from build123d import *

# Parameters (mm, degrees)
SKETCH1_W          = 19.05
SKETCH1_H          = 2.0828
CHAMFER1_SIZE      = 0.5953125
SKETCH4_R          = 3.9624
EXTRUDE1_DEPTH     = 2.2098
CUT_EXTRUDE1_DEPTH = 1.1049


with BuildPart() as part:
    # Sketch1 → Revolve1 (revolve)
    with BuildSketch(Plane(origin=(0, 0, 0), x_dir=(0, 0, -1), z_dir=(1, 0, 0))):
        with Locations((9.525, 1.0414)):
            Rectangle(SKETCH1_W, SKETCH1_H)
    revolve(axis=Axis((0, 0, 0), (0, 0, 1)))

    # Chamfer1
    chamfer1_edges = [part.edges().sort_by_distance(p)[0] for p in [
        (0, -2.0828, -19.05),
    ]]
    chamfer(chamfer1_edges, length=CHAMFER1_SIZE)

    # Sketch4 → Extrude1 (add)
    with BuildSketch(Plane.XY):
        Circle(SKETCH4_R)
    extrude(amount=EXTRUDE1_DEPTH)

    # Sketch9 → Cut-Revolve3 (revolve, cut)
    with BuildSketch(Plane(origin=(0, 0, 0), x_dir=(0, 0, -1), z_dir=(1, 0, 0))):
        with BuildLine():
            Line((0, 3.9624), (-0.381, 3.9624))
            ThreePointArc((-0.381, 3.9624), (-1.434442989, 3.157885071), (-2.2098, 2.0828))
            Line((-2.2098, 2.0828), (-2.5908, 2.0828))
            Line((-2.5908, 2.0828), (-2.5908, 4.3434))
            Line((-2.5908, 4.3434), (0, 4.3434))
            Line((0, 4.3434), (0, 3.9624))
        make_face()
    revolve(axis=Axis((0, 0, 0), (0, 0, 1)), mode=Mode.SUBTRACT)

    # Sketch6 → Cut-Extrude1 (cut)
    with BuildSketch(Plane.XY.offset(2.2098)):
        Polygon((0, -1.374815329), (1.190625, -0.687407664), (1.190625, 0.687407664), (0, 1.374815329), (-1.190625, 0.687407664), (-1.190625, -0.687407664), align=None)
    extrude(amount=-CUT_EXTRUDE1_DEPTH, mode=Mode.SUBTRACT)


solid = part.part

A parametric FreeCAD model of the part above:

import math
import FreeCAD as App
import Part
import Sketcher
from FreeCAD import Vector
Q = App.Units.Quantity


def edges_at(feature, points):
    """Names of the edges that pass closest to the given points."""
    edges = feature.Shape.Edges
    near = lambda p: min(range(len(edges)), key=lambda i: edges[i].distToShape(Part.Vertex(*p))[0])
    return sorted({f"Edge{near(p) + 1}" for p in points})

doc = App.newDocument("Part")
body = doc.addObject("PartDesign::Body", "Body")

# Sketch on YZ plane
sketch1 = body.newObject("Sketcher::SketchObject", "Sketch")
sketch1.AttachmentSupport = (doc.getObject("YZ_Plane"), [""])
sketch1.MapMode = "FlatFace"
sketch1.addGeometry([
    Part.LineSegment(Vector(2.0828, 0, 0), Vector(0, 0, 0)),
    Part.LineSegment(Vector(0, 0, 0), Vector(0, -19.05, 0)),
    Part.LineSegment(Vector(0, -19.05, 0), Vector(2.0828, -19.05, 0)),
    Part.LineSegment(Vector(2.0828, -19.05, 0), Vector(2.0828, 0, 0)),
], False)
sketch1.addConstraint([
    Sketcher.Constraint("Coincident", 0, 2, 1, 1),
    Sketcher.Constraint("Coincident", 1, 2, 2, 1),
    Sketcher.Constraint("Coincident", 2, 2, 3, 1),
    Sketcher.Constraint("Coincident", 3, 2, 0, 1),
    Sketcher.Constraint("Horizontal", 0),
    Sketcher.Constraint("Vertical", 1),
    Sketcher.Constraint("Horizontal", 2),
    Sketcher.Constraint("Vertical", 3),
    Sketcher.Constraint("Coincident", 0, 2, -1, 1),
    Sketcher.Constraint("DistanceY", 1, 2, 1, 1, Q("0.75 in")),
    Sketcher.Constraint("DistanceX", 0, 2, 0, 1, Q("0.082 in")),
])
revolution = body.newObject("PartDesign::Revolution", "Revolution")
revolution.Profile = sketch1
revolution.ReferenceAxis = (sketch1, ["V_Axis"])
revolution.Angle = 360
doc.recompute()

chamfer = body.newObject("PartDesign::Chamfer", "Chamfer")
chamfer.Base = (revolution, edges_at(revolution, [(0, -2.083, -19.05)]))
chamfer.Size = 0.595313

# Sketch on XY plane
sketch2 = body.newObject("Sketcher::SketchObject", "Sketch001")
sketch2.AttachmentSupport = (doc.getObject("XY_Plane"), [""])
sketch2.MapMode = "FlatFace"
sketch2.addGeometry(Part.Circle(Vector(0, 0, 0), Vector(0, 0, 1), 3.9624), False)
sketch2.addConstraint([
    Sketcher.Constraint("Coincident", 0, 3, -1, 1),
    Sketcher.Constraint("Diameter", 0, Q("0.312 in")),
])
pad1 = body.newObject("PartDesign::Pad", "Pad")
pad1.Profile = sketch2
pad1.Length = Q("0.087 in")

# Sketch on YZ plane
sketch3 = body.newObject("Sketcher::SketchObject", "Sketch002")
sketch3.AttachmentSupport = (doc.getObject("YZ_Plane"), [""])
sketch3.MapMode = "FlatFace"
sketch3.addGeometry([
    Part.LineSegment(Vector(3.9624, 0.381, 0), Vector(3.9624, 0, 0)),  # 0
    Part.LineSegment(Vector(3.9624, 0, 0), Vector(4.3434, 0, 0)),  # 1
    Part.LineSegment(Vector(4.3434, 0, 0), Vector(4.3434, 2.5908, 0)),  # 2
    Part.LineSegment(Vector(4.3434, 2.5908, 0), Vector(2.0828, 2.5908, 0)),  # 3
    Part.LineSegment(Vector(2.0828, 2.5908, 0), Vector(2.0828, 2.2098, 0)),  # 4
    Part.ArcOfCircle(Part.Circle(Vector(0, -1.811161, 0), Vector(0, 0, 1), 4.528375), math.radians(28.953156), math.radians(62.616493)),  # 5
], False)
sketch3.addConstraint([
    Sketcher.Constraint("Coincident", 0, 2, 1, 1),
    Sketcher.Constraint("Coincident", 1, 2, 2, 1),
    Sketcher.Constraint("Coincident", 2, 2, 3, 1),
    Sketcher.Constraint("Coincident", 3, 2, 4, 1),
    Sketcher.Constraint("Coincident", 4, 2, 5, 2),
    Sketcher.Constraint("Coincident", 5, 1, 0, 1),
    Sketcher.Constraint("Vertical", 0),
    Sketcher.Constraint("Horizontal", 1),
    Sketcher.Constraint("Vertical", 2),
    Sketcher.Constraint("Horizontal", 3),
    Sketcher.Constraint("Vertical", 4),
    Sketcher.Constraint("PointOnObject", 5, 3, -2),
    Sketcher.Constraint("PointOnObject", 0, 2, -1),
    Sketcher.Constraint("Equal", 1, 0),
    Sketcher.Constraint("Equal", 0, 4),
    Sketcher.Constraint("DistanceX", 1, 1, 1, 2, Q("0.015 in")),
    Sketcher.Constraint("DistanceX", 3, 2, 3, 1, Q("0.089 in")),
    Sketcher.Constraint("DistanceY", 2, 1, 2, 2, Q("0.102 in")),
    Sketcher.Constraint("DistanceX", -1, 1, 0, 2, Q("0.156 in")),
])
groove = body.newObject("PartDesign::Groove", "Groove")
groove.Profile = sketch3
groove.ReferenceAxis = (sketch3, ["V_Axis"])
groove.Angle = 360

# Sketch on XY plane
sketch4 = body.newObject("Sketcher::SketchObject", "Sketch003")
sketch4.AttachmentSupport = (doc.getObject("XY_Plane"), [""])
sketch4.MapMode = "FlatFace"
sketch4.AttachmentOffset = App.Placement(Vector(0, 0, 0.087 * 25.4), App.Rotation())
sketch4.addGeometry([
    Part.LineSegment(Vector(0, -1.374815, 0), Vector(1.190625, -0.687408, 0)),  # 0
    Part.LineSegment(Vector(1.190625, -0.687408, 0), Vector(1.190625, 0.687408, 0)),  # 1
    Part.LineSegment(Vector(1.190625, 0.687408, 0), Vector(0, 1.374815, 0)),  # 2
    Part.LineSegment(Vector(0, 1.374815, 0), Vector(-1.190625, 0.687408, 0)),  # 3
    Part.LineSegment(Vector(-1.190625, 0.687408, 0), Vector(-1.190625, -0.687408, 0)),  # 4
    Part.LineSegment(Vector(-1.190625, -0.687408, 0), Vector(0, -1.374815, 0)),  # 5
], False)
sketch4.addConstraint([
    Sketcher.Constraint("Coincident", 0, 2, 1, 1),
    Sketcher.Constraint("Coincident", 1, 2, 2, 1),
    Sketcher.Constraint("Coincident", 2, 2, 3, 1),
    Sketcher.Constraint("Coincident", 3, 2, 4, 1),
    Sketcher.Constraint("Coincident", 4, 2, 5, 1),
    Sketcher.Constraint("Coincident", 5, 2, 0, 1),
    Sketcher.Constraint("Vertical", 1),
    Sketcher.Constraint("Vertical", 4),
    Sketcher.Constraint("Symmetric", 0, 2, 3, 2, -1, 1),
    Sketcher.Constraint("Symmetric", 2, 2, 5, 2, -1, 1),
    Sketcher.Constraint("PointOnObject", 2, 2, -2),
    Sketcher.Constraint("Parallel", 2, 5),
    Sketcher.Constraint("Horizontal", 1, 2, 3, 2),
    Sketcher.Constraint("Angle", 0, Q("30 deg")),
    Sketcher.Constraint("DistanceX", -1, 1, 0, 2, Q("0.046875 in")),
    Sketcher.Constraint("DistanceY", 1, 1, 1, 2, 1.374815),
])
pocket1 = body.newObject("PartDesign::Pocket", "Pocket")
pocket1.Profile = sketch4
pocket1.Length = Q("0.0435 in")

doc.recompute()
